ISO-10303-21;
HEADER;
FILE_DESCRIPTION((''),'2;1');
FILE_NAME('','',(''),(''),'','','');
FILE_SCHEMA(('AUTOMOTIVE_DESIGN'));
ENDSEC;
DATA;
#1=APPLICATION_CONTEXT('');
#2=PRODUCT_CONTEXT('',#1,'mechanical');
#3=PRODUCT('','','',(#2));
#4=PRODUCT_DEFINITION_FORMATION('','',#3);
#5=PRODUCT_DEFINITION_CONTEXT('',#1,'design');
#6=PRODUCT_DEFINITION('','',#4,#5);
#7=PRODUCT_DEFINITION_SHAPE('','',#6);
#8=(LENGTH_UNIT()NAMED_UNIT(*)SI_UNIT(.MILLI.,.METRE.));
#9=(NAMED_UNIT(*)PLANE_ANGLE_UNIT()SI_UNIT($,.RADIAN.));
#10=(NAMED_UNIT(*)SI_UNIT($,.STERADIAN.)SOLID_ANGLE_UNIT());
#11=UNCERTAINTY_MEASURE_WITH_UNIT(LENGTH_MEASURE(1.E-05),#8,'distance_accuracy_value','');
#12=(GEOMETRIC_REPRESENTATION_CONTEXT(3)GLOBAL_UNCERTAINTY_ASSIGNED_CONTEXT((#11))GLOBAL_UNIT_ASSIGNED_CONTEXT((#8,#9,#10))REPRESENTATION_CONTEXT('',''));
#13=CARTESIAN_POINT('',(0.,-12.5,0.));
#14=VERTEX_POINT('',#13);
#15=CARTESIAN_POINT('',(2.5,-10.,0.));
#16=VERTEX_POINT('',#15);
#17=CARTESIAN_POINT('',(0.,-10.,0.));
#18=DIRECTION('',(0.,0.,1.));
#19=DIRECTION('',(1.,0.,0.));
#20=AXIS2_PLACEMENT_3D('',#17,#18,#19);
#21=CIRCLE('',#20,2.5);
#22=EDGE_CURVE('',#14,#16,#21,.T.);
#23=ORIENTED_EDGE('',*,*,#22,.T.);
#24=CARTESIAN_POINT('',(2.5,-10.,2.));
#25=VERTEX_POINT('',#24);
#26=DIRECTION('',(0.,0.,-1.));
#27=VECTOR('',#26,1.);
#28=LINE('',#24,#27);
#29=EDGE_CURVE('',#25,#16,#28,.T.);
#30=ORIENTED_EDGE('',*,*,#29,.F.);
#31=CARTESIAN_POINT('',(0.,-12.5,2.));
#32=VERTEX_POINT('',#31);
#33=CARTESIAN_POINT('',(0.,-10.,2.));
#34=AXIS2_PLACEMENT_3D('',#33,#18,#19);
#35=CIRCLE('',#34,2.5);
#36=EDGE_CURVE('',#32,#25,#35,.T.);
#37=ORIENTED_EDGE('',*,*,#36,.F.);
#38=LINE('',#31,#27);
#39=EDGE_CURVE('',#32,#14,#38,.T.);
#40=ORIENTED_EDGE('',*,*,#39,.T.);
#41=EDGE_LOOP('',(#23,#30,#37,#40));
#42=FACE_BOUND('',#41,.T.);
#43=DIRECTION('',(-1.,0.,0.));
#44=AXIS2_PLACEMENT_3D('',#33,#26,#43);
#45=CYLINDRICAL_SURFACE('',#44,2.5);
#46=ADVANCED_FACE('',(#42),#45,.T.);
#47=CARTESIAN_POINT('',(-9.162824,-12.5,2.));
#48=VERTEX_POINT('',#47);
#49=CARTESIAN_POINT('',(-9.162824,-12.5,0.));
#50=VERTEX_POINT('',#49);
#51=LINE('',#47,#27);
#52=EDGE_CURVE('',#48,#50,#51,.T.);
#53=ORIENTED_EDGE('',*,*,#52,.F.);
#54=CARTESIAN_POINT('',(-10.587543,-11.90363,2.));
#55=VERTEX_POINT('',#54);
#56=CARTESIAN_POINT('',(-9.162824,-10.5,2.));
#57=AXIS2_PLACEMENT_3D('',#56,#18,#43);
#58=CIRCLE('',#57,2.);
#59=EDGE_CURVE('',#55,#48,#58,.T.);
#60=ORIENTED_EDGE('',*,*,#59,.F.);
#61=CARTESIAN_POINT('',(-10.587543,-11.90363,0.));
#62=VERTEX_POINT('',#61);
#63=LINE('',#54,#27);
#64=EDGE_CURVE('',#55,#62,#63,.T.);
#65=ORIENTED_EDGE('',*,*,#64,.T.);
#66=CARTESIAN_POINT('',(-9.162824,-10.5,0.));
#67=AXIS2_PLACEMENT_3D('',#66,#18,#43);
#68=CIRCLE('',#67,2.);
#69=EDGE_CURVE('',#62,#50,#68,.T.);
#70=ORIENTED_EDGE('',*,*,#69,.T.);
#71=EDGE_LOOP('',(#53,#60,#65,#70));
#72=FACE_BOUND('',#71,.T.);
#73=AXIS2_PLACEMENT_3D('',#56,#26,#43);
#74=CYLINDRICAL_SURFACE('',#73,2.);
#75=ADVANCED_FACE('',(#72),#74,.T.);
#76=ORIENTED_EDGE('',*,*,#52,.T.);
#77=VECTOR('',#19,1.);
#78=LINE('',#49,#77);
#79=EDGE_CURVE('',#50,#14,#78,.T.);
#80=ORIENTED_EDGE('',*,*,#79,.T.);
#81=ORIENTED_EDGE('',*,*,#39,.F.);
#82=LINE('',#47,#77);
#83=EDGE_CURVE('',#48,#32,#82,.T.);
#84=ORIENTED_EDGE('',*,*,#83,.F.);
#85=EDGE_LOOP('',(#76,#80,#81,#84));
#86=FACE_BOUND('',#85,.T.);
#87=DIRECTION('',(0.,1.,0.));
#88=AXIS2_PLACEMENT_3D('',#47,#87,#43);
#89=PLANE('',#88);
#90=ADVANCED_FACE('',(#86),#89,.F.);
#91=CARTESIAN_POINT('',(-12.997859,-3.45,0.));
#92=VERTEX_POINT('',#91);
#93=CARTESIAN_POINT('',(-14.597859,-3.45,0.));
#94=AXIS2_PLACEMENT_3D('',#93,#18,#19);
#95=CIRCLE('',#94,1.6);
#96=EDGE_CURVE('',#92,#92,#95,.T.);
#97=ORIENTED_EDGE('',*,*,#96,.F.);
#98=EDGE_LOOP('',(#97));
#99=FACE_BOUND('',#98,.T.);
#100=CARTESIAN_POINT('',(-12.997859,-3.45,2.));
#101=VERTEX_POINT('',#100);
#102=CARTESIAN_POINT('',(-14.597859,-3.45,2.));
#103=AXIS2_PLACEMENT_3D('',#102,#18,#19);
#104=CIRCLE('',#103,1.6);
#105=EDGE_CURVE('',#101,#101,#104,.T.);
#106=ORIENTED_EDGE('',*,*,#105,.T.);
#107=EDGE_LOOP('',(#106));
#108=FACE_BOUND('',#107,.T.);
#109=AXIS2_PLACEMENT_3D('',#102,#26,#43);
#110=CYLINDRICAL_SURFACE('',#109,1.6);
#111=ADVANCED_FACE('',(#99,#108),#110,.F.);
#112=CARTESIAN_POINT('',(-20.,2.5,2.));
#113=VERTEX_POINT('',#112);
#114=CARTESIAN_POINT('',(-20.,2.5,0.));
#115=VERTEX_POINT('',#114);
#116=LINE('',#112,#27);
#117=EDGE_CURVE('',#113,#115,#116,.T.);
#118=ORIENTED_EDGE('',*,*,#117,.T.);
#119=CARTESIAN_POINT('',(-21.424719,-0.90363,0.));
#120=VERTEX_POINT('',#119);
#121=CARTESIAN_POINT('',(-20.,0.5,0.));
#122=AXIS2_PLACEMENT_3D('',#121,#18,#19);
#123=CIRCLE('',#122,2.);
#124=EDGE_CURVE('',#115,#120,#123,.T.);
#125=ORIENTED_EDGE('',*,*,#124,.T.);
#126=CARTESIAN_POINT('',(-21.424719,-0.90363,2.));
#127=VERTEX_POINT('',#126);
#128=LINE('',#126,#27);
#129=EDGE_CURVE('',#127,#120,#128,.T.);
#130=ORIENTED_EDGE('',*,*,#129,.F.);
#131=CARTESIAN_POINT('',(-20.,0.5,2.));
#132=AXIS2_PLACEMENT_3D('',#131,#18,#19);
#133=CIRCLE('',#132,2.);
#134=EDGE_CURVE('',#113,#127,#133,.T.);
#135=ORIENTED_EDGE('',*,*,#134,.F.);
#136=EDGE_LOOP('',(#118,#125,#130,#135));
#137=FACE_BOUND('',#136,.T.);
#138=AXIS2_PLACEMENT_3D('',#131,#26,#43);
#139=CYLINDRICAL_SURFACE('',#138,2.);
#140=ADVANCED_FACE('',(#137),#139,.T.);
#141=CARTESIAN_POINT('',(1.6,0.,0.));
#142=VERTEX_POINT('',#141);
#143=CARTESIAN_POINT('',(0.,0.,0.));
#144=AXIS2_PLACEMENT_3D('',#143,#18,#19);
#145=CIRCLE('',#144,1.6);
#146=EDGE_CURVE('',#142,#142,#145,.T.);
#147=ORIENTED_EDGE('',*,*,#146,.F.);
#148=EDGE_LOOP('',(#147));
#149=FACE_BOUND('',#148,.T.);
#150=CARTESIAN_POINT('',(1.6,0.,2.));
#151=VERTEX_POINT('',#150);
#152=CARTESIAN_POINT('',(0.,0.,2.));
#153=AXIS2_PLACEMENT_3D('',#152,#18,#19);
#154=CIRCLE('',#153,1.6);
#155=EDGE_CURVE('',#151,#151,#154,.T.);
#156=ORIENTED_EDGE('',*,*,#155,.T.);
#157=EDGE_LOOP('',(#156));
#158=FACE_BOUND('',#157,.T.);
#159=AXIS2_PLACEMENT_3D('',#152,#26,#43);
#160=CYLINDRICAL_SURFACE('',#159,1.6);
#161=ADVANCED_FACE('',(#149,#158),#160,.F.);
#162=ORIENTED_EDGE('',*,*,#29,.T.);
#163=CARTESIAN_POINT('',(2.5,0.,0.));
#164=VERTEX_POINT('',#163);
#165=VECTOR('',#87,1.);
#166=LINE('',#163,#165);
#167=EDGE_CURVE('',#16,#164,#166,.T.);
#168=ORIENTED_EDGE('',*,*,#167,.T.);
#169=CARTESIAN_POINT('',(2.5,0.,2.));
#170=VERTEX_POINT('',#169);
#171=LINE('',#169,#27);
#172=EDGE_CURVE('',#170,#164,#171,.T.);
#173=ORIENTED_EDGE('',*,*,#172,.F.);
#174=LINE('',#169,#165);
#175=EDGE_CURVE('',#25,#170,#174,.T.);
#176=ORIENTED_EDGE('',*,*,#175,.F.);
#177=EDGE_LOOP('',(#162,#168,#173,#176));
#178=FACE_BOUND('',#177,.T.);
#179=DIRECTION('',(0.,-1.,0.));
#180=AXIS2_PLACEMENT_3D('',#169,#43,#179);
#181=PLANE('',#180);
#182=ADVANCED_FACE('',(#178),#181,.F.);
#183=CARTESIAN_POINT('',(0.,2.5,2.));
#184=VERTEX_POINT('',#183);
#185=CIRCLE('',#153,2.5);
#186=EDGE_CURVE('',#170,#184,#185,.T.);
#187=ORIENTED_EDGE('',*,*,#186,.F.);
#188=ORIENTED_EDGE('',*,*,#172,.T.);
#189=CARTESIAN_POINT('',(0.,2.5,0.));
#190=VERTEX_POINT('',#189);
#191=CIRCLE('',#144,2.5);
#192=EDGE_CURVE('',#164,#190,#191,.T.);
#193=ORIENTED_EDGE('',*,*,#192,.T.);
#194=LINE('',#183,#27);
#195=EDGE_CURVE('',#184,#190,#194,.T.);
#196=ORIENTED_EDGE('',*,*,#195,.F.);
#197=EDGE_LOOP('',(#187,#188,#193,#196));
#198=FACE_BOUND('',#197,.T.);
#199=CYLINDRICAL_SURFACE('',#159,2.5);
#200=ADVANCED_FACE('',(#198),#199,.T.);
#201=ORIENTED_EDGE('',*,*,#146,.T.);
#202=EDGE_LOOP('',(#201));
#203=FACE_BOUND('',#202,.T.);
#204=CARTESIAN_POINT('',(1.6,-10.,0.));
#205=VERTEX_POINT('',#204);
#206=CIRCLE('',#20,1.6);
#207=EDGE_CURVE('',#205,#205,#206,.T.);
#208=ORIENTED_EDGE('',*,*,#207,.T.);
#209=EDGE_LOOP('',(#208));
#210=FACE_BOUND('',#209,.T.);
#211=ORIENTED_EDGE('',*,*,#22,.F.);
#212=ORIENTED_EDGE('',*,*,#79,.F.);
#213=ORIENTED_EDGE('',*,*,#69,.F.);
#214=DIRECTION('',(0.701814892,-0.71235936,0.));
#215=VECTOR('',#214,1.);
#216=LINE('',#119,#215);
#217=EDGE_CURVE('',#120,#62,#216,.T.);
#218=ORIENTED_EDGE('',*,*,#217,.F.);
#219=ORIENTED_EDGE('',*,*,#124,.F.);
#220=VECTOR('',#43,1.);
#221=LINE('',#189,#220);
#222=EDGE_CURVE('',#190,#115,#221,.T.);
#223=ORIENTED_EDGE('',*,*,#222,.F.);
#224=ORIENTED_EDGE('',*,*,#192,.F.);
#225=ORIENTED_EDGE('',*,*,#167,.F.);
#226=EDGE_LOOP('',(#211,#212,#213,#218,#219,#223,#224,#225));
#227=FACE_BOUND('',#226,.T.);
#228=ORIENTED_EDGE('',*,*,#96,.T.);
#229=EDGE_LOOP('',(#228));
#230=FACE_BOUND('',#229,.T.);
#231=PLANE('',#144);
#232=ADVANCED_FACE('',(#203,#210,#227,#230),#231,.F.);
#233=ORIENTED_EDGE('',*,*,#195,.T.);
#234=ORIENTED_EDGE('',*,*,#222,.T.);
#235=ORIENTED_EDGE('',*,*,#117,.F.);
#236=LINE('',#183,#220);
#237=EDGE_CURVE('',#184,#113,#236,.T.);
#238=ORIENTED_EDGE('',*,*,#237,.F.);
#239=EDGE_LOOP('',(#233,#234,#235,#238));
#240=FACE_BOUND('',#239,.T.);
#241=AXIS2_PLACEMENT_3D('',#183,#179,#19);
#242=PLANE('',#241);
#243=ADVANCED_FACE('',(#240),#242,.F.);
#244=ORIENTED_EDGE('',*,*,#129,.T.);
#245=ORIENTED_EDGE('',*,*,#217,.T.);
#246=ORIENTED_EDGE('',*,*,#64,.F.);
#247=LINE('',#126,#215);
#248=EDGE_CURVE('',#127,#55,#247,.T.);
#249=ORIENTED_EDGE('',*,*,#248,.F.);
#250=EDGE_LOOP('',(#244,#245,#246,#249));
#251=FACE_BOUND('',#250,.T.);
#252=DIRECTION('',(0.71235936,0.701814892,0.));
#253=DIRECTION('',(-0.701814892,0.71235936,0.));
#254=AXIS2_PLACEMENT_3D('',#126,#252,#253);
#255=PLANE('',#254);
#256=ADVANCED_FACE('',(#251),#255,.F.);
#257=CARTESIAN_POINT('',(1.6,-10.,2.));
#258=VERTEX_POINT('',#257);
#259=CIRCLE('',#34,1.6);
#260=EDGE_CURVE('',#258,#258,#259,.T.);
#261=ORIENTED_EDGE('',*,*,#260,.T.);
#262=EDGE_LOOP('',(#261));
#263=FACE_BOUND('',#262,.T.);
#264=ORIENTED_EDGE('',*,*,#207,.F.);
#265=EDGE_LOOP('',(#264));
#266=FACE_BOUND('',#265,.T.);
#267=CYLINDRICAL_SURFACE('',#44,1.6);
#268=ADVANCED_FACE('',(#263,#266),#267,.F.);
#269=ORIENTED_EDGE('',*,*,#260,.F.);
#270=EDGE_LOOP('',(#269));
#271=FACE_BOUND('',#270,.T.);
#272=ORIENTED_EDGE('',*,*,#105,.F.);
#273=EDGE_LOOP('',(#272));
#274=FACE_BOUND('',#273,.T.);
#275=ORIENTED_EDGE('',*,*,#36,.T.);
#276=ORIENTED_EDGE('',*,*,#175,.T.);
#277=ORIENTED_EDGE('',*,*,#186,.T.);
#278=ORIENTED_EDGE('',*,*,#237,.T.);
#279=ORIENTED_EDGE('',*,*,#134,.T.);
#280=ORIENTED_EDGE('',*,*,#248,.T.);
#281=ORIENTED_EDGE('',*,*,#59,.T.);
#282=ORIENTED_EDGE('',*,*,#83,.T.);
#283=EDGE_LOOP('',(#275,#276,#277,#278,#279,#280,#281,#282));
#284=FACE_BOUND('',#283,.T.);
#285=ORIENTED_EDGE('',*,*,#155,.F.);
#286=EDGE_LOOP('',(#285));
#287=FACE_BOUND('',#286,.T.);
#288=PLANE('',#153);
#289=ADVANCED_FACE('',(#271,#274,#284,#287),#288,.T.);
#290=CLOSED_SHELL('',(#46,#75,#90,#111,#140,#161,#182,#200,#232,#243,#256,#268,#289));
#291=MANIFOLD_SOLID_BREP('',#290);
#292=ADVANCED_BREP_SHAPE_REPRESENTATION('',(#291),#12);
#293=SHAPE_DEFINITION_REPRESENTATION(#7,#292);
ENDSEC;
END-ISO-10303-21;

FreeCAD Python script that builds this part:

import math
import FreeCAD as App
import Part
import Sketcher
Q = App.Units.Quantity

doc = App.newDocument("Part")
body = doc.addObject("PartDesign::Body", "Body")

# Sketch on XY plane
sketch1 = doc.addObject("Sketcher::SketchObject", "Sketch")
body.addObject(sketch1)
sketch1.AttachmentSupport = (doc.XY_Plane, [""])
sketch1.MapMode = "FlatFace"
sketch1.addGeometry(Part.LineSegment(App.Vector(2.5, -10, 0), App.Vector(2.5, 0, 0)), False)
sketch1.addGeometry(Part.ArcOfCircle(Part.Circle(App.Vector(0, 0, 0), App.Vector(0, 0, 1), 2.5), math.radians(0), math.radians(90)), False)
sketch1.addGeometry(Part.LineSegment(App.Vector(0, 2.5, 0), App.Vector(-20, 2.5, 0)), False)
sketch1.addGeometry(Part.ArcOfCircle(Part.Circle(App.Vector(-20, 0.5, 0), App.Vector(0, 0, 1), 2), math.radians(90), math.radians(225)), False)
sketch1.addGeometry(Part.LineSegment(App.Vector(-21.4, -0.9, 0), App.Vector(-10.6, -11.9, 0)), False)
sketch1.addGeometry(Part.ArcOfCircle(Part.Circle(App.Vector(-9.2, -10.5, 0), App.Vector(0, 0, 1), 2), math.radians(-135), math.radians(-90)), False)
sketch1.addGeometry(Part.LineSegment(App.Vector(-9.2, -12.5, 0), App.Vector(0, -12.5, 0)), False)
sketch1.addGeometry(Part.ArcOfCircle(Part.Circle(App.Vector(0, -10, 0), App.Vector(0, 0, 1), 2.5), math.radians(-90), math.radians(0)), False)
sketch1.addGeometry(Part.Circle(App.Vector(0, -10, 0), App.Vector(0, 0, 1), 1.6), False)
sketch1.addGeometry(Part.Circle(App.Vector(0, 0, 0), App.Vector(0, 0, 1), 1.6), False)
sketch1.addGeometry(Part.Circle(App.Vector(-14.6, -3.5, 0), App.Vector(0, 0, 1), 1.6), False)
sketch1.addConstraint(Sketcher.Constraint("Tangent", 0, 2, 1, 1))
sketch1.addConstraint(Sketcher.Constraint("Tangent", 1, 2, 2, 1))
sketch1.addConstraint(Sketcher.Constraint("Tangent", 2, 2, 3, 1))
sketch1.addConstraint(Sketcher.Constraint("Tangent", 3, 2, 4, 1))
sketch1.addConstraint(Sketcher.Constraint("Tangent", 4, 2, 5, 1))
sketch1.addConstraint(Sketcher.Constraint("Tangent", 5, 2, 6, 1))
sketch1.addConstraint(Sketcher.Constraint("Tangent", 6, 2, 7, 1))
sketch1.addConstraint(Sketcher.Constraint("Tangent", 7, 2, 0, 1))
sketch1.addConstraint(Sketcher.Constraint("Vertical", 0))
sketch1.addConstraint(Sketcher.Constraint("Horizontal", 2))
sketch1.addConstraint(Sketcher.Constraint("Horizontal", 6))
sketch1.addConstraint(Sketcher.Constraint("Coincident", 1, 3, -1, 1))
sketch1.addConstraint(Sketcher.Constraint("Coincident", 9, 3, -1, 1))
sketch1.addConstraint(Sketcher.Constraint("Coincident", 8, 3, 7, 3))
sketch1.addConstraint(Sketcher.Constraint("Equal", 3, 5))
sketch1.addConstraint(Sketcher.Constraint("Equal", 1, 7))
sketch1.addConstraint(Sketcher.Constraint("Equal", 8, 9))
sketch1.addConstraint(Sketcher.Constraint("Equal", 9, 10))
sketch1.addConstraint(Sketcher.Constraint("Radius", 3, Q("2 mm")))
sketch1.addConstraint(Sketcher.Constraint("Diameter", 8, Q("3.2 mm")))
sketch1.addConstraint(Sketcher.Constraint("Radius", 1, Q("2.5 mm")))
sketch1.addConstraint(Sketcher.Constraint("DistanceX", 2, 2, 2, 1, Q("20 mm")))
sketch1.addConstraint(Sketcher.Constraint("DistanceY", 0, 1, 0, 2, Q("10 mm")))
sketch1.addConstraint(Sketcher.Constraint("DistanceY", 10, 3, -1, 1, Q("3.45 mm")))
sketch1.addConstraint(Sketcher.Constraint("DistanceX", 6, 1, 6, 2, Q("9.162824 mm")))
sketch1.addConstraint(Sketcher.Constraint("DistanceX", 10, 3, -1, 1, Q("14.597859 mm")))
pad1 = doc.addObject("PartDesign::Pad", "Pad")
body.addObject(pad1)
pad1.Profile = sketch1
pad1.Length = 2

doc.recompute()
